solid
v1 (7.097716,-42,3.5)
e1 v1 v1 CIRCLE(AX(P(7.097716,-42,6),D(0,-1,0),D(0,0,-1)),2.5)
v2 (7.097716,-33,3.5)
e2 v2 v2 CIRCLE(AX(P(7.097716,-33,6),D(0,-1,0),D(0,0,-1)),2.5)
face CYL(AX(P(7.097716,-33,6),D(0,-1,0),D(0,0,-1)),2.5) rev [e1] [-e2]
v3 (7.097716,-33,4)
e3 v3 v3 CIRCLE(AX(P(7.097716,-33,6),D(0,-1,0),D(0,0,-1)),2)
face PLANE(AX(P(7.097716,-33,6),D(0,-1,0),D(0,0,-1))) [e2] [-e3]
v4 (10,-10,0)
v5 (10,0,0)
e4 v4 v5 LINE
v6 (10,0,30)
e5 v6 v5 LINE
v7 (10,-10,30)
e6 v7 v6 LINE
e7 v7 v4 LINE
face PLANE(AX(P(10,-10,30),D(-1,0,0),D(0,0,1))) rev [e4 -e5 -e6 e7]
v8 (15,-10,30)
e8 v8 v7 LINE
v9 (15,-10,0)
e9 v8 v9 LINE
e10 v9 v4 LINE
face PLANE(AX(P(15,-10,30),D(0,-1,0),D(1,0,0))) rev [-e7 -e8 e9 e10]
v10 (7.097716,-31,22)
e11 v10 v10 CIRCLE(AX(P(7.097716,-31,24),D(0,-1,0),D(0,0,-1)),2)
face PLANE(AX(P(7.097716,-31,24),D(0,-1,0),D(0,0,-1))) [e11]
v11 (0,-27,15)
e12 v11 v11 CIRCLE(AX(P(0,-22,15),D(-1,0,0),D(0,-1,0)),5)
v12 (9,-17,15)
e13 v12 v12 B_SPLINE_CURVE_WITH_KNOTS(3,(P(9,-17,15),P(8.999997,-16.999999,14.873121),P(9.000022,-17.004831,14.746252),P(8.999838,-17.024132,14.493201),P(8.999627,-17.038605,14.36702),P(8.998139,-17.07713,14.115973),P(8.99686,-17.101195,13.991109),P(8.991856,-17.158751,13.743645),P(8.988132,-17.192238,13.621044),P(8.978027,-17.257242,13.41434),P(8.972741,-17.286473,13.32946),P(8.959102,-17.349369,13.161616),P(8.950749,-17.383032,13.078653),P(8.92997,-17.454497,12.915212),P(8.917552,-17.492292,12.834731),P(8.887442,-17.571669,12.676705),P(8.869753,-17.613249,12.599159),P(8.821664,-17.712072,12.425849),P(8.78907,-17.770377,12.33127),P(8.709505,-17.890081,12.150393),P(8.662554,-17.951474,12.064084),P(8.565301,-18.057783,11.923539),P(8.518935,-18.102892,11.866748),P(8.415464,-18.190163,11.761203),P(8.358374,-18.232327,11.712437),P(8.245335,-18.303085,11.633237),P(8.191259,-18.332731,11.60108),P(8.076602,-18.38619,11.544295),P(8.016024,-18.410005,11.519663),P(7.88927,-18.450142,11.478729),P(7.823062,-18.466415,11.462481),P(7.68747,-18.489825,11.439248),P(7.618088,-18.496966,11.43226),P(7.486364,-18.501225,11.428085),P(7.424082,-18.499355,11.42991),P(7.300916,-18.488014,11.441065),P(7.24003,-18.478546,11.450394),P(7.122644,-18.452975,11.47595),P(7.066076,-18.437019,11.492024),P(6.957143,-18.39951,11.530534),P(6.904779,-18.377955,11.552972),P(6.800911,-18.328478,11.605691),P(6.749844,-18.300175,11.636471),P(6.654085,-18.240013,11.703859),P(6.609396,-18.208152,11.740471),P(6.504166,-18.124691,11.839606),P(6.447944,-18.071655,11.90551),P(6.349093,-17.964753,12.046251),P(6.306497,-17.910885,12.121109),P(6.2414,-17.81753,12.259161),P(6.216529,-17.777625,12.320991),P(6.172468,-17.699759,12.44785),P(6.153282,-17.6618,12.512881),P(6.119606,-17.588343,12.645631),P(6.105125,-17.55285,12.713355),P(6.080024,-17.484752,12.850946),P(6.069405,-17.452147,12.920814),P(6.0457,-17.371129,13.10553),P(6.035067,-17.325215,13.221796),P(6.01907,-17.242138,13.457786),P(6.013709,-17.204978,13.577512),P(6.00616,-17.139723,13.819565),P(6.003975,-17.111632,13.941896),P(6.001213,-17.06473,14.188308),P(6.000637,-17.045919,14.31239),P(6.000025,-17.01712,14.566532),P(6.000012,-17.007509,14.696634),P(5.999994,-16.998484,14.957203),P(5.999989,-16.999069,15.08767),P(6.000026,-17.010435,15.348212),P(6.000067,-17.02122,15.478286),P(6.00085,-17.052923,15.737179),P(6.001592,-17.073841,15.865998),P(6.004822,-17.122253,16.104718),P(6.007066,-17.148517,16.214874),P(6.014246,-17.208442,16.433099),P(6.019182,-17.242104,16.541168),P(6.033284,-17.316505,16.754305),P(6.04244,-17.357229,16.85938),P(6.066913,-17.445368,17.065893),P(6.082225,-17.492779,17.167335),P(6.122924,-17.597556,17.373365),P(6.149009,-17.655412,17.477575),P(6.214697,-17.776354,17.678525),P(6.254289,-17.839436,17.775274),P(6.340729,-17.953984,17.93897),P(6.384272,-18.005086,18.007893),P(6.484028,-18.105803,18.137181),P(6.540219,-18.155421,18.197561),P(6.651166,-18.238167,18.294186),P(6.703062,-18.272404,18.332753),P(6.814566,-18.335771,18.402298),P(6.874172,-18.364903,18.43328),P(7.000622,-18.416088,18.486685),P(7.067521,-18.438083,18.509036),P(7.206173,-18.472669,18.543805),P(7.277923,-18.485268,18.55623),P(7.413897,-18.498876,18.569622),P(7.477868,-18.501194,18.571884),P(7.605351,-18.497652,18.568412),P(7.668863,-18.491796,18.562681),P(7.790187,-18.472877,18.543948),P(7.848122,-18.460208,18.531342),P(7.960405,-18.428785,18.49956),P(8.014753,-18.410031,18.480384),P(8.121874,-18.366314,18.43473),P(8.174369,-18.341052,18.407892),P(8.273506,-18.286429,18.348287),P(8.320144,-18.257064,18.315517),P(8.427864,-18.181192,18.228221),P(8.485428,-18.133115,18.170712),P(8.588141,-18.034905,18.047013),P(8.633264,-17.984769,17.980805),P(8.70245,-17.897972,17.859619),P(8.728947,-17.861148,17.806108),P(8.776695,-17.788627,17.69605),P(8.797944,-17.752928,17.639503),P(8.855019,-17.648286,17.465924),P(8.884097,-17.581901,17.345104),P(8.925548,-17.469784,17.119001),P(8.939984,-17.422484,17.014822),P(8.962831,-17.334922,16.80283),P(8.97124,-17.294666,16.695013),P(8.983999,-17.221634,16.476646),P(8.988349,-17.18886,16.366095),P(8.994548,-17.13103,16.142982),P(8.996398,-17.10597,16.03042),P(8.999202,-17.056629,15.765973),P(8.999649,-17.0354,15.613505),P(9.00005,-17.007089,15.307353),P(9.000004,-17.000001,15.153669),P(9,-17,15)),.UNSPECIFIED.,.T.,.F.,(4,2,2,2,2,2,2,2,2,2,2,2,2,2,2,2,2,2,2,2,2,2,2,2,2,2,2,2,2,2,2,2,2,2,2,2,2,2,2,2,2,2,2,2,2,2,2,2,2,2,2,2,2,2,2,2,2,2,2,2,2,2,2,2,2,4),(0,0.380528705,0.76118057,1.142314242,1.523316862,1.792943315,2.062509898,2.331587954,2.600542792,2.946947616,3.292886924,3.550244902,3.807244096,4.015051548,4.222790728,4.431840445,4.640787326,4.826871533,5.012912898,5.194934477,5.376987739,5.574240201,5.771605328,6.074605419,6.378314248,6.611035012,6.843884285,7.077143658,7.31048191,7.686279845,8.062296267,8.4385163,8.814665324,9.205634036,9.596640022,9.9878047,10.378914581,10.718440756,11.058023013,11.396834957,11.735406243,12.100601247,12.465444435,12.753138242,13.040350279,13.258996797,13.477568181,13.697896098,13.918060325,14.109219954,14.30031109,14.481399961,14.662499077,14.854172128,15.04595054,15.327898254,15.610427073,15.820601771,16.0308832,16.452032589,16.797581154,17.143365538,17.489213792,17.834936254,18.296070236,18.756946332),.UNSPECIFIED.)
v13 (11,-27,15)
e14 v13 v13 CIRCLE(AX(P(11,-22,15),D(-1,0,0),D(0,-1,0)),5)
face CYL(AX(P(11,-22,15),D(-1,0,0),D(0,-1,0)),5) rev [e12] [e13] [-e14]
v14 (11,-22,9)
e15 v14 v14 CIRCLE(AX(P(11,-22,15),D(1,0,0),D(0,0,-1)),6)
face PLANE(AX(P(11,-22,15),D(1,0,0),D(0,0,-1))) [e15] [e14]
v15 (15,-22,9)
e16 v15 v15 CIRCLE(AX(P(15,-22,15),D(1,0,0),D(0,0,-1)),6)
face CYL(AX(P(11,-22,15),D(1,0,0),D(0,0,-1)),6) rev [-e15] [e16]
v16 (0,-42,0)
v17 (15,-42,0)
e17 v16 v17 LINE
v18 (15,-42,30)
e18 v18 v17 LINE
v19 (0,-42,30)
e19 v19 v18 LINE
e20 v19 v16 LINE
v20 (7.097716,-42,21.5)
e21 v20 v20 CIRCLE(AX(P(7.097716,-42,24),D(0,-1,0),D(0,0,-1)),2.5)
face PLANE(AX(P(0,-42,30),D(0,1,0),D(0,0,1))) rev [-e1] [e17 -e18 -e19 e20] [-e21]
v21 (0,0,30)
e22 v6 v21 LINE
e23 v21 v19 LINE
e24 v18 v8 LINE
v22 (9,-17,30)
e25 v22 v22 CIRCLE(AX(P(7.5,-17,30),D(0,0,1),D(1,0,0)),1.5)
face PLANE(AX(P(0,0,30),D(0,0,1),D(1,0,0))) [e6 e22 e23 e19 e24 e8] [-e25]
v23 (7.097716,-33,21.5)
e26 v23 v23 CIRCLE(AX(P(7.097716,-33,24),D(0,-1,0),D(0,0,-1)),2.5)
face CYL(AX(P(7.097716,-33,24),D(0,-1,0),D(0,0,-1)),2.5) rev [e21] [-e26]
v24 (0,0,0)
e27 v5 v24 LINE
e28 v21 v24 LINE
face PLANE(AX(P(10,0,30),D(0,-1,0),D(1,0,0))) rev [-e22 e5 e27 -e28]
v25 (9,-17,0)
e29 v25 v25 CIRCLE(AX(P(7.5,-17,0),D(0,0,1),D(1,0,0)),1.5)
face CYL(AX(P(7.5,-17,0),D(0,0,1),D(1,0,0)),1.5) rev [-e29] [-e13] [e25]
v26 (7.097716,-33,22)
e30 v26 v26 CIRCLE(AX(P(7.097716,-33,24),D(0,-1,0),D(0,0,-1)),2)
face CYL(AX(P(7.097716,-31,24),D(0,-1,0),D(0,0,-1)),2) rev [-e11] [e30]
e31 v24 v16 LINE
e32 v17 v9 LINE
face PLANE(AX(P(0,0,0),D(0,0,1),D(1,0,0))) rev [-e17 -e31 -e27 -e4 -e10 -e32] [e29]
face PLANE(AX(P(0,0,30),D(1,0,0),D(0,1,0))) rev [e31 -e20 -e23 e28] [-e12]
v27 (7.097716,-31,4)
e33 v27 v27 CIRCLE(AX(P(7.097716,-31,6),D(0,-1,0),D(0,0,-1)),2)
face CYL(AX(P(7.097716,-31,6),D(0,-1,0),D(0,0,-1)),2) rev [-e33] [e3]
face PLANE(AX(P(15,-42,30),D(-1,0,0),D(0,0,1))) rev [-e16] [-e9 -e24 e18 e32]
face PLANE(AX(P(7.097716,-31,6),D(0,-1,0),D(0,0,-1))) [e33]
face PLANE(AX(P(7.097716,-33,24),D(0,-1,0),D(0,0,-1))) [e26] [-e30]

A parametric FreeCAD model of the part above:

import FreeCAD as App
import Part
import Sketcher
Q = App.Units.Quantity

doc = App.newDocument("Part")
body = doc.addObject("PartDesign::Body", "Body")

# Sketch on XY plane
sketch1 = doc.addObject("Sketcher::SketchObject", "Sketch")
body.addObject(sketch1)
sketch1.AttachmentSupport = (doc.XY_Plane, [""])
sketch1.MapMode = "FlatFace"
sketch1.addGeometry([
    Part.LineSegment(App.Vector(0, 0, 0), App.Vector(0, -42, 0)),  # 0
    Part.LineSegment(App.Vector(0, -42, 0), App.Vector(15, -42, 0)),  # 1
    Part.LineSegment(App.Vector(15, -42, 0), App.Vector(15, -10, 0)),  # 2
    Part.LineSegment(App.Vector(15, -10, 0), App.Vector(10, -10, 0)),  # 3
    Part.LineSegment(App.Vector(10, -10, 0), App.Vector(10, 0, 0)),  # 4
    Part.LineSegment(App.Vector(10, 0, 0), App.Vector(0, 0, 0)),  # 5
], False)
sketch1.addConstraint([
    Sketcher.Constraint("Coincident", 0, 2, 1, 1),
    Sketcher.Constraint("Coincident", 1, 2, 2, 1),
    Sketcher.Constraint("Coincident", 2, 2, 3, 1),
    Sketcher.Constraint("Coincident", 3, 2, 4, 1),
    Sketcher.Constraint("Coincident", 4, 2, 5, 1),
    Sketcher.Constraint("Coincident", 5, 2, 0, 1),
    Sketcher.Constraint("Vertical", 0),
    Sketcher.Constraint("Horizontal", 1),
    Sketcher.Constraint("Vertical", 2),
    Sketcher.Constraint("Horizontal", 3),
    Sketcher.Constraint("Vertical", 4),
    Sketcher.Constraint("Horizontal", 5),
    Sketcher.Constraint("Coincident", 5, 2, -1, 1),
    Sketcher.Constraint("Equal", 5, 4),
    Sketcher.Constraint("DistanceX", 1, 1, 1, 2, Q("15 mm")),
    Sketcher.Constraint("DistanceX", 3, 2, 3, 1, Q("5 mm")),
    Sketcher.Constraint("DistanceY", 0, 2, 0, 1, Q("42 mm")),
])
pad1 = doc.addObject("PartDesign::Pad", "Pad")
body.addObject(pad1)
pad1.Profile = sketch1
pad1.Length = 30

# Sketch on YZ plane
sketch2 = doc.addObject("Sketcher::SketchObject", "Sketch001")
body.addObject(sketch2)
sketch2.AttachmentSupport = (doc.YZ_Plane, [""])
sketch2.MapMode = "FlatFace"
sketch2.AttachmentOffset = App.Placement(App.Vector(0, 0, 15), App.Rotation())
sketch2.addGeometry(Part.Circle(App.Vector(-22, 15, 0), App.Vector(0, 0, 1), 6), False)
sketch2.addConstraint([
    Sketcher.Constraint("Diameter", 0, Q("12 mm")),
    Sketcher.Constraint("DistanceX", 0, 3, -1, 1, Q("22 mm")),
    Sketcher.Constraint("DistanceY", -1, 1, 0, 3, Q("15 mm")),
])
pocket1 = doc.addObject("PartDesign::Pocket", "Pocket")
body.addObject(pocket1)
pocket1.Profile = sketch2
pocket1.Length = 4

# Sketch on YZ plane
sketch3 = doc.addObject("Sketcher::SketchObject", "Sketch002")
body.addObject(sketch3)
sketch3.AttachmentSupport = (doc.YZ_Plane, [""])
sketch3.MapMode = "FlatFace"
sketch3.addGeometry(Part.Circle(App.Vector(-22, 15, 0), App.Vector(0, 0, 1), 5), False)
sketch3.addConstraint([
    Sketcher.Constraint("Diameter", 0, Q("10 mm")),
    Sketcher.Constraint("DistanceX", 0, 3, -1, 1, Q("22 mm")),
    Sketcher.Constraint("DistanceY", -1, 1, 0, 3, Q("15 mm")),
])
pocket2 = doc.addObject("PartDesign::Pocket", "Pocket001")
body.addObject(pocket2)
pocket2.Profile = sketch3
pocket2.Length = 11
pocket2.Reversed = True

# Sketch on XY plane
sketch4 = doc.addObject("Sketcher::SketchObject", "Sketch003")
body.addObject(sketch4)
sketch4.AttachmentSupport = (doc.XY_Plane, [""])
sketch4.MapMode = "FlatFace"
sketch4.AttachmentOffset = App.Placement(App.Vector(0, 0, 30), App.Rotation())
sketch4.addGeometry(Part.Circle(App.Vector(7.5, -17, 0), App.Vector(0, 0, 1), 1.5), False)
sketch4.addConstraint([
    Sketcher.Constraint("Diameter", 0, Q("3 mm")),
    Sketcher.Constraint("DistanceY", 0, 3, -1, 1, Q("17 mm")),
    Sketcher.Constraint("DistanceX", -1, 1, 0, 3, Q("7.5 mm")),
])
pocket3 = doc.addObject("PartDesign::Pocket", "Pocket002")
body.addObject(pocket3)
pocket3.Profile = sketch4
pocket3.Type = "ThroughAll"

# Sketch on XZ plane
sketch5 = doc.addObject("Sketcher::SketchObject", "Sketch004")
body.addObject(sketch5)
sketch5.AttachmentSupport = (doc.XZ_Plane, [""])
sketch5.MapMode = "FlatFace"
sketch5.AttachmentOffset = App.Placement(App.Vector(0, 0, 42), App.Rotation())
sketch5.addGeometry([
    Part.Circle(App.Vector(7.097716, 24, 0), App.Vector(0, 0, 1), 2.5),
    Part.Circle(App.Vector(7.097716, 6, 0), App.Vector(0, 0, 1), 2.5),
], False)
sketch5.addConstraint([
    Sketcher.Constraint("Equal", 0, 1),
    Sketcher.Constraint("Vertical", 0, 3, 1, 3),
    Sketcher.Constraint("Diameter", 0, Q("5 mm")),
    Sketcher.Constraint("DistanceY", -1, 1, 0, 3, Q("24 mm")),
    Sketcher.Constraint("DistanceY", -1, 1, 1, 3, Q("6 mm")),
    Sketcher.Constraint("DistanceX", -1, 1, 0, 3, Q("7.097716 mm")),
])
pocket4 = doc.addObject("PartDesign::Pocket", "Pocket003")
body.addObject(pocket4)
pocket4.Profile = sketch5
pocket4.Length = 9

# Sketch on XZ plane
sketch6 = doc.addObject("Sketcher::SketchObject", "Sketch005")
body.addObject(sketch6)
sketch6.AttachmentSupport = (doc.XZ_Plane, [""])
sketch6.MapMode = "FlatFace"
sketch6.AttachmentOffset = App.Placement(App.Vector(0, 0, 42), App.Rotation())
sketch6.addGeometry([
    Part.Circle(App.Vector(7.097716, 24, 0), App.Vector(0, 0, 1), 2),
    Part.Circle(App.Vector(7.097716, 6, 0), App.Vector(0, 0, 1), 2),
], False)
sketch6.addConstraint([
    Sketcher.Constraint("Equal", 0, 1),
    Sketcher.Constraint("Vertical", 0, 3, 1, 3),
    Sketcher.Constraint("Diameter", 0, Q("4 mm")),
    Sketcher.Constraint("DistanceY", -1, 1, 0, 3, Q("24 mm")),
    Sketcher.Constraint("DistanceY", -1, 1, 1, 3, Q("6 mm")),
    Sketcher.Constraint("DistanceX", -1, 1, 0, 3, Q("7.097716 mm")),
])
pocket5 = doc.addObject("PartDesign::Pocket", "Pocket004")
body.addObject(pocket5)
pocket5.Profile = sketch6
pocket5.Length = 11

doc.recompute()
